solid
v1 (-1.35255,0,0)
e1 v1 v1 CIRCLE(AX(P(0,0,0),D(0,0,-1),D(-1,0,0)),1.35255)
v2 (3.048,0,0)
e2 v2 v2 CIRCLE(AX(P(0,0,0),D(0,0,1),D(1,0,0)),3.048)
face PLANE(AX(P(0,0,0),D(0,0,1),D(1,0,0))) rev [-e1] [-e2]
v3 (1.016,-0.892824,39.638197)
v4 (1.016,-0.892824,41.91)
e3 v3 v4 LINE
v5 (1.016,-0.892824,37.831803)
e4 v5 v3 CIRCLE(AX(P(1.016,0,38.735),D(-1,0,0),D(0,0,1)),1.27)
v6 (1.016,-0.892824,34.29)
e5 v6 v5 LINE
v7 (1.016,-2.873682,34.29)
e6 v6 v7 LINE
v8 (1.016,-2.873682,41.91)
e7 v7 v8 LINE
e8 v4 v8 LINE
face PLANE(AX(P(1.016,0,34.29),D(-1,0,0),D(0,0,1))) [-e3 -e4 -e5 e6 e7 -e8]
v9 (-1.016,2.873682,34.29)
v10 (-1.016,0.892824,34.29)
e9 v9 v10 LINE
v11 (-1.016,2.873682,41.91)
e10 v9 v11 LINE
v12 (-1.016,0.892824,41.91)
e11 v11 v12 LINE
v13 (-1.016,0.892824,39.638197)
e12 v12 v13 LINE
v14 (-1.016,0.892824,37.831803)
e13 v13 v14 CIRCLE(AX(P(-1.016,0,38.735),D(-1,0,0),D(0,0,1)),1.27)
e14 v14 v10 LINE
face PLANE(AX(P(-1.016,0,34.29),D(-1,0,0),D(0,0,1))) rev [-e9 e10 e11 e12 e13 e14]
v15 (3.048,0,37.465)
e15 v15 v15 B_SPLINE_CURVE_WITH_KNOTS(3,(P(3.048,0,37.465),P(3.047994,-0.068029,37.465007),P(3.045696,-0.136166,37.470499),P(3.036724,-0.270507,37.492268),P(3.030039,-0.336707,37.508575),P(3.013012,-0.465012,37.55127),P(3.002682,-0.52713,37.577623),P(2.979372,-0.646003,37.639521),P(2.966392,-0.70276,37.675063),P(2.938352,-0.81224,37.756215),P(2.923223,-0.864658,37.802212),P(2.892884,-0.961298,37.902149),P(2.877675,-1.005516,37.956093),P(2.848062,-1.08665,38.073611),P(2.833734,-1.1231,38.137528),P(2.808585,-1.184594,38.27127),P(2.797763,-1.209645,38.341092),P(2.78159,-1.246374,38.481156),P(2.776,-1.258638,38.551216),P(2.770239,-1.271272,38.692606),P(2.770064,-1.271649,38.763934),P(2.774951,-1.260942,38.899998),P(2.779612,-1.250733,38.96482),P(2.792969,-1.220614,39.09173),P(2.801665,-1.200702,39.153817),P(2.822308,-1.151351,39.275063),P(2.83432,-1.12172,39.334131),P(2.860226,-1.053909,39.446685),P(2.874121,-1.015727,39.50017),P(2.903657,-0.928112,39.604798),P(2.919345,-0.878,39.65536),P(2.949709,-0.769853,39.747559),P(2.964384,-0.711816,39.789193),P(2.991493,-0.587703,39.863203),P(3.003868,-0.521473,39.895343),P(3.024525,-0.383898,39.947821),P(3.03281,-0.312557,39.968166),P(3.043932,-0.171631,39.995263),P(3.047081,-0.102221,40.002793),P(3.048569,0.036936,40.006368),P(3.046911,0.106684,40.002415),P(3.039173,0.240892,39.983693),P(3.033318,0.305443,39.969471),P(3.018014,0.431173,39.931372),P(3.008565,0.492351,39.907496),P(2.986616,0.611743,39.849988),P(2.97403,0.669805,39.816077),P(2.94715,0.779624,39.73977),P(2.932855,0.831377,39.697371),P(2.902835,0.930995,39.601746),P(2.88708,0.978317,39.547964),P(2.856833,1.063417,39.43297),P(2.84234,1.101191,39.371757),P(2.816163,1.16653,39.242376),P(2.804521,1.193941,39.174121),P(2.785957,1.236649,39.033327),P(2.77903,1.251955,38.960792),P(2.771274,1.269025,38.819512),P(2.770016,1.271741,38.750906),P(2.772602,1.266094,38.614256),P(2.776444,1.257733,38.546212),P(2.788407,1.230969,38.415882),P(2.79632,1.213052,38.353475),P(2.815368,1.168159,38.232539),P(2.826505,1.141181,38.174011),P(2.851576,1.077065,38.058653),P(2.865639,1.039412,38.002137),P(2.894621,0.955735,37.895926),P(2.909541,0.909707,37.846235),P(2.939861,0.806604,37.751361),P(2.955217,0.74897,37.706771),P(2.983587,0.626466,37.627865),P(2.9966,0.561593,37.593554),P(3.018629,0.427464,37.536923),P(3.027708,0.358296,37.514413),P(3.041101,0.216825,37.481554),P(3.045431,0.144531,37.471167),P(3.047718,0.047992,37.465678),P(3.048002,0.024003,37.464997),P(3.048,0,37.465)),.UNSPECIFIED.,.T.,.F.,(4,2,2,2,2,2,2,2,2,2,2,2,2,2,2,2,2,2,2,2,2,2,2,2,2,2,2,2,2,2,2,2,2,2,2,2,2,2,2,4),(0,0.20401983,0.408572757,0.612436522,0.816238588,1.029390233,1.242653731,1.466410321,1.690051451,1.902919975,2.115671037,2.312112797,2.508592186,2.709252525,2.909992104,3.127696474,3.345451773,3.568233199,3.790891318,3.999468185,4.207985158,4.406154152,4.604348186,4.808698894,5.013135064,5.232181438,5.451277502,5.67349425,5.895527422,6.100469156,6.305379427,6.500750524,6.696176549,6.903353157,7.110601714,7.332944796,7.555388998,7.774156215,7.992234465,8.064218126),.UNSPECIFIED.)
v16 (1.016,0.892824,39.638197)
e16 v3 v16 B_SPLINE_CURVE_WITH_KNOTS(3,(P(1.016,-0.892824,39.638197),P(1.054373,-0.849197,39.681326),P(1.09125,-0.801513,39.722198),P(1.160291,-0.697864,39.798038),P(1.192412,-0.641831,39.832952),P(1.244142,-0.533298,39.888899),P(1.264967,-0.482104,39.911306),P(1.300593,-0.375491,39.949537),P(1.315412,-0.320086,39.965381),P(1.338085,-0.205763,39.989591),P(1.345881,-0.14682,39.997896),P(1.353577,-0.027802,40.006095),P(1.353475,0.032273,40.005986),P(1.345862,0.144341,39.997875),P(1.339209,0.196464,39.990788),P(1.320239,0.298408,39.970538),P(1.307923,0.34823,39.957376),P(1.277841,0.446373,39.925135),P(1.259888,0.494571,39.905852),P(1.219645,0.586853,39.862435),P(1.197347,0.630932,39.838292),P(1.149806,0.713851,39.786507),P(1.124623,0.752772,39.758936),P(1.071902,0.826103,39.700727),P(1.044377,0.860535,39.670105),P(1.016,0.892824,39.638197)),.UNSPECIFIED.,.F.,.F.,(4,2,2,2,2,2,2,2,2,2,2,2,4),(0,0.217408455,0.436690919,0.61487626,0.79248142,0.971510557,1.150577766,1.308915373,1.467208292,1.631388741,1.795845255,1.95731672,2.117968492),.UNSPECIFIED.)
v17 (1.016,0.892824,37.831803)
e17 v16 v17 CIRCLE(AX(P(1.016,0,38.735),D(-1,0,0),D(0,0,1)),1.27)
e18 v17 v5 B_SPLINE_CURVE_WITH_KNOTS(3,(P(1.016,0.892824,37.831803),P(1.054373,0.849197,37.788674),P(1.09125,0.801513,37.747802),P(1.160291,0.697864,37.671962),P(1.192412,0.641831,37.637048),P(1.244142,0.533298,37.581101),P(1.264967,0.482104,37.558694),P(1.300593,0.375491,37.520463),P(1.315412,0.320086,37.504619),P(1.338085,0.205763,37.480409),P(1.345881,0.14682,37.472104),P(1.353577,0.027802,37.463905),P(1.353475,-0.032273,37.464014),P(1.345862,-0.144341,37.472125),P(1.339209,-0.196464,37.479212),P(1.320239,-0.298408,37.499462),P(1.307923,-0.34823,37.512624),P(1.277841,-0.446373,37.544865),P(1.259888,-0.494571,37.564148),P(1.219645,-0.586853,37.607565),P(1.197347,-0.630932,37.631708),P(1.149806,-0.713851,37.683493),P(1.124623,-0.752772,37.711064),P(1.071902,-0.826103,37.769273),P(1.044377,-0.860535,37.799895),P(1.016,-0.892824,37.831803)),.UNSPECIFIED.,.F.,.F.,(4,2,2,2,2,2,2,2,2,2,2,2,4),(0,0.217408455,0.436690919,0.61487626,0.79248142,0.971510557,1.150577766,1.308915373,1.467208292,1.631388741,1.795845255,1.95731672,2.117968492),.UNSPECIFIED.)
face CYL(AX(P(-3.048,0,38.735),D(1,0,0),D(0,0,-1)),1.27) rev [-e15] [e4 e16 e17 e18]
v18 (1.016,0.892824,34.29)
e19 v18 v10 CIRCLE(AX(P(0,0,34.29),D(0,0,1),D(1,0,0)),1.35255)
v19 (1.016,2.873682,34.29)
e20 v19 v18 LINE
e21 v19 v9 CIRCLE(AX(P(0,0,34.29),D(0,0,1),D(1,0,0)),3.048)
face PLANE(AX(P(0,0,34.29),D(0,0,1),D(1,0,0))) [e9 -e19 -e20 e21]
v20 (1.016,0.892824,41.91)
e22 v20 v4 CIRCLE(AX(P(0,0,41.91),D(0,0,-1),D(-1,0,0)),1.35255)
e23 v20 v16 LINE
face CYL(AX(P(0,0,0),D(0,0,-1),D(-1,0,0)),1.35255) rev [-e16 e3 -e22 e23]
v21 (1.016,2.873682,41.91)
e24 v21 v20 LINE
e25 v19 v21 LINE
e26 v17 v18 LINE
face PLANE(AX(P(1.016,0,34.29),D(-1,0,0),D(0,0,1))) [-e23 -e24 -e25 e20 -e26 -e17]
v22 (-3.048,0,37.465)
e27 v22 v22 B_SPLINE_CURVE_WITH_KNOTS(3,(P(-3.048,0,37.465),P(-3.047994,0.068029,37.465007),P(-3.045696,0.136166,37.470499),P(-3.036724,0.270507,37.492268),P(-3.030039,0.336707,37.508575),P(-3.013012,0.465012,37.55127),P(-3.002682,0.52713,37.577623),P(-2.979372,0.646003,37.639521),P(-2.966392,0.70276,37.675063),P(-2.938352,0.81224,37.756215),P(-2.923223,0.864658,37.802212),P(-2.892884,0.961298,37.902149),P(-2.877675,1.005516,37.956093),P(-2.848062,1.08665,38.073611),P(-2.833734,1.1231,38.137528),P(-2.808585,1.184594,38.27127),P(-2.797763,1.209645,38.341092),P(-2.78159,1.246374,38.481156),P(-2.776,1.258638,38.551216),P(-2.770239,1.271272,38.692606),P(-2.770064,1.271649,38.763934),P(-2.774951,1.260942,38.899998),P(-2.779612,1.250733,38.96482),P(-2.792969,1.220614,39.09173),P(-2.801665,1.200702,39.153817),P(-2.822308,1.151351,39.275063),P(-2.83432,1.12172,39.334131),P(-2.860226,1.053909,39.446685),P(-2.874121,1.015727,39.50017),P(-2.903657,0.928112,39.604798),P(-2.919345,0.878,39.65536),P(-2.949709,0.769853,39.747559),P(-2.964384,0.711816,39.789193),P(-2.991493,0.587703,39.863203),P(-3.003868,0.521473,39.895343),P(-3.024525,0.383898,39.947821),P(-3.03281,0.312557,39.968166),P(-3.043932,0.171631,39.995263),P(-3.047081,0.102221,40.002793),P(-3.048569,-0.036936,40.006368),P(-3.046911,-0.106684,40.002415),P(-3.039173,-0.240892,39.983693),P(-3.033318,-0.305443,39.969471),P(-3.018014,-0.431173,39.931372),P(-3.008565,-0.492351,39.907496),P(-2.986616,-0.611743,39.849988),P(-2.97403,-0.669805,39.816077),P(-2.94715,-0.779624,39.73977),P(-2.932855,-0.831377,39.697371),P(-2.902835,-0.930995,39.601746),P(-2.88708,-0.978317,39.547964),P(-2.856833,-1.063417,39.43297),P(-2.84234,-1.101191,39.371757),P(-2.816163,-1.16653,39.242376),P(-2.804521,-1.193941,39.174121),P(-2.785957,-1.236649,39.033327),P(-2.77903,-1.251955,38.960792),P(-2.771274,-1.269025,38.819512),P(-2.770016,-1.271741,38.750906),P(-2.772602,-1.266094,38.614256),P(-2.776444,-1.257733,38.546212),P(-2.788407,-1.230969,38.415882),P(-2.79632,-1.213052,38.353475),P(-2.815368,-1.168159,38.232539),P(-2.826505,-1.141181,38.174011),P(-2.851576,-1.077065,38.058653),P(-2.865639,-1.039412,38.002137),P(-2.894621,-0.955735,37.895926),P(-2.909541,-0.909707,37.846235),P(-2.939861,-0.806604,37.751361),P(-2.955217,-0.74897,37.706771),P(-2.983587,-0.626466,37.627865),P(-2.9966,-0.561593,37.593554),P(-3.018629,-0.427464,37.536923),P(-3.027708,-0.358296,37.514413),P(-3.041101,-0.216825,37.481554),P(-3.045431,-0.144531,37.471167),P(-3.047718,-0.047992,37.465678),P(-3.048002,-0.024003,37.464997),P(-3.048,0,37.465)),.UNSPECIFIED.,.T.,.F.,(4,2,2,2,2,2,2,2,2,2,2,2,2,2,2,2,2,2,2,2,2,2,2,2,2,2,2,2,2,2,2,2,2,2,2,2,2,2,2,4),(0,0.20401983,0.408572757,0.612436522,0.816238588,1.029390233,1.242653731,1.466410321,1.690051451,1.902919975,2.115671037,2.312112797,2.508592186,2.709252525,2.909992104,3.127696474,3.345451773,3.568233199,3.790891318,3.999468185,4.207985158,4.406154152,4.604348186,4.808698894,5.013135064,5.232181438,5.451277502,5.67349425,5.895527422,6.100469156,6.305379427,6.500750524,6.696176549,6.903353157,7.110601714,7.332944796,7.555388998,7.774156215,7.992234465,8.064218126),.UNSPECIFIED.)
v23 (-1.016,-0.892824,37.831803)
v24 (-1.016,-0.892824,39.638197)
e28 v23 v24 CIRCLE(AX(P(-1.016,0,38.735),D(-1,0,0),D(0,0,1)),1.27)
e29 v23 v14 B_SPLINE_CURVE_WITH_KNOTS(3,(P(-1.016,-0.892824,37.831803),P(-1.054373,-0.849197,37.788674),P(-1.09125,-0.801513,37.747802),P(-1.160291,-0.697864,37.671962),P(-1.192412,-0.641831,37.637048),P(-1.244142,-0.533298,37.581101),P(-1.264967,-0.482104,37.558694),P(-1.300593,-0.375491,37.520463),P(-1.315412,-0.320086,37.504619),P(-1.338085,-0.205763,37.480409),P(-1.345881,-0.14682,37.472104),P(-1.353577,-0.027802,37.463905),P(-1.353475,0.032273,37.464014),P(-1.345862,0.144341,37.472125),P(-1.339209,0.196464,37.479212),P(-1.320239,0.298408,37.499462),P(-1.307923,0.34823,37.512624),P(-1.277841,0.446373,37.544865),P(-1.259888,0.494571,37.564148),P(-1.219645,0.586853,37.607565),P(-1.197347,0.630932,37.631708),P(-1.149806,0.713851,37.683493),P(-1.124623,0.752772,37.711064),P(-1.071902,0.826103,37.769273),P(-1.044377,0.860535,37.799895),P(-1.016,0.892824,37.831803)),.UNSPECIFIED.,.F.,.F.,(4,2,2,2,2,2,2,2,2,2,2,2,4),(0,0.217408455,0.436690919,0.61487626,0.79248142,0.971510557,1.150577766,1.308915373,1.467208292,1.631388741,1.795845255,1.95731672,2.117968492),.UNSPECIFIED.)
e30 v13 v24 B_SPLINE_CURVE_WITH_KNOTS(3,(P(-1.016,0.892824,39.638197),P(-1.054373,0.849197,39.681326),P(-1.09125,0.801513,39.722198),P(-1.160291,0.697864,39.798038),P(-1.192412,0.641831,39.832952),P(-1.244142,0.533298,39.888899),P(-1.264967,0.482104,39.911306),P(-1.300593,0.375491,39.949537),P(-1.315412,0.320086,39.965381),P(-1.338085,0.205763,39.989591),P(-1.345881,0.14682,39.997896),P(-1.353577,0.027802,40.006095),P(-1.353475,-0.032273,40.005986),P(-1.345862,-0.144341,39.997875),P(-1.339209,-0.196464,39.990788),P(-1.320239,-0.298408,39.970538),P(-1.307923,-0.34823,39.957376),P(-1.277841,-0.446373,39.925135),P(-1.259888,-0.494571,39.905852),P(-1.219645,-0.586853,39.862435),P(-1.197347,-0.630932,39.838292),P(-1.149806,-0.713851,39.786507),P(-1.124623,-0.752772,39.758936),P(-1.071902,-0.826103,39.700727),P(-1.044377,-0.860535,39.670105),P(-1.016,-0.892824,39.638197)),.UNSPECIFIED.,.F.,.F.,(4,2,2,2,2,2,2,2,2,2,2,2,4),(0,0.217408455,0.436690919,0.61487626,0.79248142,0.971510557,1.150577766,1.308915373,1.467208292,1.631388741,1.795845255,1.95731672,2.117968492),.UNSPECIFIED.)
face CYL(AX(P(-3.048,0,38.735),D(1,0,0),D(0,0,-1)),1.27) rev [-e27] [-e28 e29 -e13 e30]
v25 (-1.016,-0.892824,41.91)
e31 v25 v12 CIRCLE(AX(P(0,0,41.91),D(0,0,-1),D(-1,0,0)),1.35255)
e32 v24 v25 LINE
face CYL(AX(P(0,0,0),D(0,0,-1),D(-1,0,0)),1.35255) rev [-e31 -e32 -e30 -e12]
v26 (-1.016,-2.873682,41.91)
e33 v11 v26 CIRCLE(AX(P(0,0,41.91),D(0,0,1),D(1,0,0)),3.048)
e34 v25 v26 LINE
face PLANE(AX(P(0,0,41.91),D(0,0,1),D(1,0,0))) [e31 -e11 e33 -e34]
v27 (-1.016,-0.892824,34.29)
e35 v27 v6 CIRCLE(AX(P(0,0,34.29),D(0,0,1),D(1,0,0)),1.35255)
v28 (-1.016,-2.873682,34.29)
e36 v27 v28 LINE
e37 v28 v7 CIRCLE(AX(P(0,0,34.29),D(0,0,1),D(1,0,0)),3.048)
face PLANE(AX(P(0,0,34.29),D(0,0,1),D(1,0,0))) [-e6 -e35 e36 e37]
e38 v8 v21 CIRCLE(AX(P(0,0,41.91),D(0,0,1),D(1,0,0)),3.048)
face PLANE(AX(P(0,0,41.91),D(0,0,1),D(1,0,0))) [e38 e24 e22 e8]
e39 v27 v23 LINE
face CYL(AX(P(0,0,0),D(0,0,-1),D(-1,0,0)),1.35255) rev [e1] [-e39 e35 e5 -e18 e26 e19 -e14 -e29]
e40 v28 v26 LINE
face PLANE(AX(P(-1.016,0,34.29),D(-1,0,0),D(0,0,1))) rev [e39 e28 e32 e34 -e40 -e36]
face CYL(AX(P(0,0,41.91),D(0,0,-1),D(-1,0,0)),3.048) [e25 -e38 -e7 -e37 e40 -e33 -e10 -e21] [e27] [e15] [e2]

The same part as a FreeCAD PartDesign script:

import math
import FreeCAD as App
import Part
import Sketcher
Q = App.Units.Quantity

doc = App.newDocument("Part")
body = doc.addObject("PartDesign::Body", "Body")

sketch1 = body.newObject("Sketcher::SketchObject", "Sketch")
sketch1.AttachmentSupport = (doc.getObject("XY_Plane"), [""])
sketch1.MapMode = "FlatFace"
sketch1.addGeometry(Part.Circle(App.Vector(0, 0, 0), App.Vector(0, 0, 1), 3), False)
sketch1.addConstraint([
    Sketcher.Constraint("Coincident", 0, 3, -1, 1),
    Sketcher.Constraint("Diameter", 0, Q("0.24 in")),
])
pad1 = body.newObject("PartDesign::Pad", "Pad")
pad1.Profile = sketch1
pad1.Length = Q("1.65 in")

sketch2 = body.newObject("Sketcher::SketchObject", "Sketch001")
sketch2.AttachmentSupport = (doc.getObject("XY_Plane"), [""])
sketch2.MapMode = "FlatFace"
sketch2.AttachmentOffset = App.Placement(App.Vector(0, 0, 1.35 * 25.4), App.Rotation())
sketch2.addGeometry([
    Part.ArcOfCircle(Part.Circle(App.Vector(0, 0, 0), App.Vector(0, 0, 1), 3), math.radians(70.53), math.radians(90)),
    Part.ArcOfCircle(Part.Circle(App.Vector(0, 0, 0), App.Vector(0, 0, 1), 3), math.radians(90), math.radians(109.47)),
    Part.LineSegment(App.Vector(-1, 2.9, 0), App.Vector(-1, -2.9, 0)),
    Part.ArcOfCircle(Part.Circle(App.Vector(0, 0, 0), App.Vector(0, 0, 1), 3), math.radians(-109.47), math.radians(-90)),
    Part.ArcOfCircle(Part.Circle(App.Vector(0, 0, 0), App.Vector(0, 0, 1), 3), math.radians(-90), math.radians(-70.53)),
    Part.LineSegment(App.Vector(1, -2.9, 0), App.Vector(1, 2.9, 0)),
], False)
sketch2.addConstraint([
    Sketcher.Constraint("Tangent", 0, 2, 1, 1),
    Sketcher.Constraint("Coincident", 1, 2, 2, 1),
    Sketcher.Constraint("Coincident", 2, 2, 3, 1),
    Sketcher.Constraint("Tangent", 3, 2, 4, 1),
    Sketcher.Constraint("Coincident", 4, 2, 5, 1),
    Sketcher.Constraint("Coincident", 5, 2, 0, 1),
    Sketcher.Constraint("Vertical", 2),
    Sketcher.Constraint("Vertical", 5),
    Sketcher.Constraint("Coincident", 0, 3, -1, 1),
    Sketcher.Constraint("Coincident", 3, 3, -1, 1),
    Sketcher.Constraint("Equal", 0, 1),
    Sketcher.Constraint("Equal", 1, 3),
    Sketcher.Constraint("Equal", 3, 4),
    Sketcher.Constraint("PointOnObject", 0, 2, -2),
    Sketcher.Constraint("PointOnObject", 3, 2, -2),
    Sketcher.Constraint("Horizontal", 2, 2, 4, 2),
    Sketcher.Constraint("Radius", 0, Q("0.12 in")),
    Sketcher.Constraint("DistanceX", 1, 2, -1, 1, Q("0.04 in")),
])
pocket1 = body.newObject("PartDesign::Pocket", "Pocket")
pocket1.Profile = sketch2
pocket1.Length = Q("0.3 in")
pocket1.Reversed = True

sketch3 = body.newObject("Sketcher::SketchObject", "Sketch002")
sketch3.AttachmentSupport = (doc.getObject("YZ_Plane"), [""])
sketch3.MapMode = "FlatFace"
sketch3.AttachmentOffset = App.Placement(App.Vector(0, 0, -0.04 * 25.4), App.Rotation())
sketch3.addGeometry(Part.Circle(App.Vector(0, 38.7, 0), App.Vector(0, 0, 1), 1.3), False)
sketch3.addConstraint([
    Sketcher.Constraint("PointOnObject", 0, 3, -2),
    Sketcher.Constraint("Diameter", 0, Q("0.1 in")),
    Sketcher.Constraint("DistanceY", -1, 1, 0, 3, Q("1.525 in")),
])
pocket2 = body.newObject("PartDesign::Pocket", "Pocket001")
pocket2.Profile = sketch3
pocket2.Type = "ThroughAll"
pocket2.Midplane = True

sketch4 = body.newObject("Sketcher::SketchObject", "Sketch003")
sketch4.AttachmentSupport = (doc.getObject("XY_Plane"), [""])
sketch4.MapMode = "FlatFace"
sketch4.addGeometry([
    Part.Circle(App.Vector(0, 0, 0), App.Vector(0, 0, 1), 1.4),
    Part.Circle(App.Vector(-6.5, -0.9, 0), App.Vector(0, 0, 1), 1.4),
], False)
sketch4.addConstraint([
    Sketcher.Constraint("Coincident", 0, 3, -1, 1),
    Sketcher.Constraint("Equal", 0, 1),
    Sketcher.Constraint("Diameter", 0, Q("0.1065 in")),
    Sketcher.Constraint("DistanceX", 1, 3, -1, 1, Q("6.46087 mm")),
    Sketcher.Constraint("DistanceY", 1, 3, -1, 1, Q("0.946769 mm")),
])
doc.recompute()
hole = body.newObject("PartDesign::Hole", "Hole")
hole.Profile = sketch4
hole.ThreadType = "None"
hole.Diameter = Q("0.1065 in")
hole.DepthType = "ThroughAll"
hole.Reversed = True

doc.recompute()
